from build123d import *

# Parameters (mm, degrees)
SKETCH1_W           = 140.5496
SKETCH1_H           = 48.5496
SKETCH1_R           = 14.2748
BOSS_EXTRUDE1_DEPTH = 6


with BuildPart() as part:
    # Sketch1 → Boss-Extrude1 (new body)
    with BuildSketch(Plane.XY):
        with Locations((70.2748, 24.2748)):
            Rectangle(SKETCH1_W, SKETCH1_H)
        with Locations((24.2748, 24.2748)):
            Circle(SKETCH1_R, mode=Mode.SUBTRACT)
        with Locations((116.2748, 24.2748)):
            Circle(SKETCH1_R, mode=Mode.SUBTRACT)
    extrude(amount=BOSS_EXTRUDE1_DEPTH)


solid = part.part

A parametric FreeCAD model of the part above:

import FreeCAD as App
import Part
import Sketcher

V = App.Vector
Q = App.Units.Quantity

doc = App.newDocument("Part")
body = doc.addObject("PartDesign::Body", "Body")

sketch1 = body.newObject("Sketcher::SketchObject", "Sketch")
sketch1.AttachmentSupport = (doc.getObject("XY_Plane"), [""])
sketch1.MapMode = "FlatFace"
sketch1.addGeometry([
    Part.LineSegment(V(0, 49, 0), V(0, 0, 0)),
    Part.LineSegment(V(0, 0, 0), V(141, 0, 0)),
    Part.LineSegment(V(141, 0, 0), V(141, 49, 0)),
    Part.LineSegment(V(141, 49, 0), V(0, 49, 0)),
    Part.Circle(V(24, 24, 0), V(0, 0, 1), 14),
    Part.Circle(V(116, 24, 0), V(0, 0, 1), 14),
], False)
sketch1.addConstraint([
    Sketcher.Constraint("Coincident", 0, 2, 1, 1),
    Sketcher.Constraint("Coincident", 1, 2, 2, 1),
    Sketcher.Constraint("Coincident", 2, 2, 3, 1),
    Sketcher.Constraint("Coincident", 3, 2, 0, 1),
    Sketcher.Constraint("Vertical", 0),
    Sketcher.Constraint("Horizontal", 1),
    Sketcher.Constraint("Vertical", 2),
    Sketcher.Constraint("Horizontal", 3),
    Sketcher.Constraint("Coincident", 0, 2, -1, 1),
    Sketcher.Constraint("Equal", 4, 5),
    Sketcher.Constraint("Horizontal", 4, 3, 5, 3),
    Sketcher.Constraint("DistanceX", 4, 3, 5, 3, Q("92 mm")),
    Sketcher.Constraint("Diameter", 4, Q("28.5496 mm")),
    Sketcher.Constraint("DistanceX", 1, 1, 1, 2, Q("140.5496 mm")),
    Sketcher.Constraint("DistanceY", 0, 2, 0, 1, Q("48.5496 mm")),
    Sketcher.Constraint("DistanceX", -1, 1, 4, 3, Q("24.2748 mm")),
    Sketcher.Constraint("DistanceY", -1, 1, 4, 3, Q("24.2748 mm")),
])
pad1 = body.newObject("PartDesign::Pad", "Pad")
pad1.Profile = sketch1
pad1.Length = 6

doc.recompute()
